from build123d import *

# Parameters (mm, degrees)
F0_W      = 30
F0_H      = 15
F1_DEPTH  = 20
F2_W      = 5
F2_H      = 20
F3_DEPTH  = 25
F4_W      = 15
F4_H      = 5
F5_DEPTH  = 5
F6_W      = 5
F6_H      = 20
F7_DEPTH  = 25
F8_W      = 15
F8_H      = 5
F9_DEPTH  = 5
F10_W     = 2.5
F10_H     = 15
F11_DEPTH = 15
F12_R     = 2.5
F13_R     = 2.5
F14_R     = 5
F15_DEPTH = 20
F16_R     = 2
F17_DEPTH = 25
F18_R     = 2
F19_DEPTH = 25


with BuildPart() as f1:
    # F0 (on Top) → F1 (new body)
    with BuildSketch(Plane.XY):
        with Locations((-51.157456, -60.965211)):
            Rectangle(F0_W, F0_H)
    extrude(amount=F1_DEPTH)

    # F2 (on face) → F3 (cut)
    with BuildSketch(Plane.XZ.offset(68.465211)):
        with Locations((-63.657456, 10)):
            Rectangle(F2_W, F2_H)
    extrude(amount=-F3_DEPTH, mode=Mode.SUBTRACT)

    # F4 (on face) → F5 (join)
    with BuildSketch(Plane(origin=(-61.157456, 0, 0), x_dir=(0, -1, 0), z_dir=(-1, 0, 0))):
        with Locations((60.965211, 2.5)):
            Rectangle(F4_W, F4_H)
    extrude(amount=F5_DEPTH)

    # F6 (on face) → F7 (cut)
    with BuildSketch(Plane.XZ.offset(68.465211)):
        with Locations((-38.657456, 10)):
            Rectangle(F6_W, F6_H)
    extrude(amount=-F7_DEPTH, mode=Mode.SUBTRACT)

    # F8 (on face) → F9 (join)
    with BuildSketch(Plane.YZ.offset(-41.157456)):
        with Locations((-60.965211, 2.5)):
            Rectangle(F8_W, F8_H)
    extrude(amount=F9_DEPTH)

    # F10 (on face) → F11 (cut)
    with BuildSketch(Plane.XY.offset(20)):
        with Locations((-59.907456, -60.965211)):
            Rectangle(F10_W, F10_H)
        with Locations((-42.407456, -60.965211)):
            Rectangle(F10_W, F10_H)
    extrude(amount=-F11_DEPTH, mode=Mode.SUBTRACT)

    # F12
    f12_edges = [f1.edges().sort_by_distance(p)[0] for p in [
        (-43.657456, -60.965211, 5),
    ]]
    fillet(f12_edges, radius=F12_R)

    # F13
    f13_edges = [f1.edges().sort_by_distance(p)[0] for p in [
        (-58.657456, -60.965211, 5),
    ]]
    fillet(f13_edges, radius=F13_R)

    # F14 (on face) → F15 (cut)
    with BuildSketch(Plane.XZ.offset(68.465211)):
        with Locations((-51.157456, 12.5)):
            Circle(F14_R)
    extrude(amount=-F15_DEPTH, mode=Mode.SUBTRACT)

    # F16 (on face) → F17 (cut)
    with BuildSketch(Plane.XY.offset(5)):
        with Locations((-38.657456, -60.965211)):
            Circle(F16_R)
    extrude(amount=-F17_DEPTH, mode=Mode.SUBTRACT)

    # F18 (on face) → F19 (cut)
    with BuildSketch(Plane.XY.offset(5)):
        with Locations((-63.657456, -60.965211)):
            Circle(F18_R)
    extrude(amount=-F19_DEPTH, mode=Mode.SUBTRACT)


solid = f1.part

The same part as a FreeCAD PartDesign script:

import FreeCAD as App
import Part
import Sketcher
Q = App.Units.Quantity


def edges_at(feature, points):
    """Names of the edges that pass closest to the given points."""
    edges = feature.Shape.Edges
    near = lambda p: min(range(len(edges)), key=lambda i: edges[i].distToShape(Part.Vertex(*p))[0])
    return sorted({f"Edge{near(p) + 1}" for p in points})


def add_polygon(sketch, points):
    """Adds a closed chain of lines whose ends are joined by coincident constraints."""
    first, n = sketch.GeometryCount, len(points)
    for a, b in zip(points, points[1:] + points[:1]):
        sketch.addGeometry(Part.LineSegment(App.Vector(*a, 0), App.Vector(*b, 0)), False)
    for i in range(n):
        sketch.addConstraint(Sketcher.Constraint("Coincident", first + i, 2, first + (i + 1) % n, 1))

doc = App.newDocument("Part")
body = doc.addObject("PartDesign::Body", "Body")

# Sketch on XY plane
sketch1 = body.newObject("Sketcher::SketchObject", "Sketch")
sketch1.AttachmentSupport = (doc.getObject("XY_Plane"), [""])
sketch1.MapMode = "FlatFace"
add_polygon(sketch1, [(-66, -53), (-66, -68), (-36, -68), (-36, -53)])  # lines 0-3
sketch1.addConstraint([
    Sketcher.Constraint("Vertical", 0),
    Sketcher.Constraint("Horizontal", 1),
    Sketcher.Constraint("Vertical", 2),
    Sketcher.Constraint("Horizontal", 3),
    Sketcher.Constraint("DistanceX", 1, 1, 1, 2, Q("30 mm")),
    Sketcher.Constraint("DistanceY", 0, 2, 0, 1, Q("15 mm")),
    Sketcher.Constraint("DistanceY", 0, 2, -1, 1, Q("68.465211 mm")),
    Sketcher.Constraint("DistanceX", 0, 2, -1, 1, Q("66.157456 mm")),
])
pad1 = body.newObject("PartDesign::Pad", "Pad")
pad1.Profile = sketch1
pad1.Length = 20

# Sketch on XZ plane
sketch2 = body.newObject("Sketcher::SketchObject", "Sketch001")
sketch2.AttachmentSupport = (doc.getObject("XZ_Plane"), [""])
sketch2.MapMode = "FlatFace"
sketch2.AttachmentOffset = App.Placement(App.Vector(0, 0, 68.465211), App.Rotation())
add_polygon(sketch2, [(-66.2, 20), (-66.2, 0), (-61.2, 0), (-61.2, 20)])  # lines 0-3
sketch2.addConstraint([
    Sketcher.Constraint("Vertical", 0),
    Sketcher.Constraint("Horizontal", 1),
    Sketcher.Constraint("Vertical", 2),
    Sketcher.Constraint("Horizontal", 3),
    Sketcher.Constraint("PointOnObject", 0, 2, -1),
    Sketcher.Constraint("DistanceX", 1, 1, 1, 2, Q("5 mm")),
    Sketcher.Constraint("DistanceY", 0, 2, 0, 1, Q("20 mm")),
    Sketcher.Constraint("DistanceX", 0, 2, -1, 1, Q("66.157456 mm")),
])
pocket1 = body.newObject("PartDesign::Pocket", "Pocket")
pocket1.Profile = sketch2
pocket1.Length = 25

# Sketch on YZ plane
sketch3 = body.newObject("Sketcher::SketchObject", "Sketch002")
sketch3.AttachmentSupport = (doc.getObject("YZ_Plane"), [""])
sketch3.MapMode = "FlatFace"
sketch3.AttachmentOffset = App.Placement(App.Vector(0, 0, -61.157456), App.Rotation())
add_polygon(sketch3, [(-53, 5), (-53, 0), (-68, 0), (-68, 5)])  # lines 0-3
sketch3.addConstraint([
    Sketcher.Constraint("Vertical", 0),
    Sketcher.Constraint("Horizontal", 1),
    Sketcher.Constraint("Vertical", 2),
    Sketcher.Constraint("Horizontal", 3),
    Sketcher.Constraint("PointOnObject", 0, 2, -1),
    Sketcher.Constraint("DistanceX", 1, 2, 1, 1, Q("15 mm")),
    Sketcher.Constraint("DistanceY", 0, 2, 0, 1, Q("5 mm")),
    Sketcher.Constraint("DistanceX", 0, 2, -1, 1, Q("53.465211 mm")),
])
pad2 = body.newObject("PartDesign::Pad", "Pad001")
pad2.Profile = sketch3
pad2.Length = 5
pad2.Reversed = True

# Sketch on XZ plane
sketch4 = body.newObject("Sketcher::SketchObject", "Sketch003")
sketch4.AttachmentSupport = (doc.getObject("XZ_Plane"), [""])
sketch4.MapMode = "FlatFace"
sketch4.AttachmentOffset = App.Placement(App.Vector(0, 0, 68.465211), App.Rotation())
add_polygon(sketch4, [(-41, 20), (-41, 0), (-36, 0), (-36, 20)])  # lines 0-3
sketch4.addConstraint([
    Sketcher.Constraint("Vertical", 0),
    Sketcher.Constraint("Horizontal", 1),
    Sketcher.Constraint("Vertical", 2),
    Sketcher.Constraint("Horizontal", 3),
    Sketcher.Constraint("PointOnObject", 0, 2, -1),
    Sketcher.Constraint("DistanceX", 1, 1, 1, 2, Q("5 mm")),
    Sketcher.Constraint("DistanceY", 0, 2, 0, 1, Q("20 mm")),
    Sketcher.Constraint("DistanceX", 0, 2, -1, 1, Q("41.157456 mm")),
])
pocket2 = body.newObject("PartDesign::Pocket", "Pocket001")
pocket2.Profile = sketch4
pocket2.Length = 25

# Sketch on YZ plane
sketch5 = body.newObject("Sketcher::SketchObject", "Sketch004")
sketch5.AttachmentSupport = (doc.getObject("YZ_Plane"), [""])
sketch5.MapMode = "FlatFace"
sketch5.AttachmentOffset = App.Placement(App.Vector(0, 0, -41.157456), App.Rotation())
add_polygon(sketch5, [(-68, 5), (-68, 0), (-53, 0), (-53, 5)])  # lines 0-3
sketch5.addConstraint([
    Sketcher.Constraint("Vertical", 0),
    Sketcher.Constraint("Horizontal", 1),
    Sketcher.Constraint("Vertical", 2),
    Sketcher.Constraint("Horizontal", 3),
    Sketcher.Constraint("PointOnObject", 0, 2, -1),
    Sketcher.Constraint("DistanceX", 1, 1, 1, 2, Q("15 mm")),
    Sketcher.Constraint("DistanceY", 0, 2, 0, 1, Q("5 mm")),
    Sketcher.Constraint("DistanceX", 0, 2, -1, 1, Q("68.465211 mm")),
])
pad3 = body.newObject("PartDesign::Pad", "Pad002")
pad3.Profile = sketch5
pad3.Length = 5

# Sketch on XY plane
sketch6 = body.newObject("Sketcher::SketchObject", "Sketch005")
sketch6.AttachmentSupport = (doc.getObject("XY_Plane"), [""])
sketch6.MapMode = "FlatFace"
sketch6.AttachmentOffset = App.Placement(App.Vector(0, 0, 20), App.Rotation())
add_polygon(sketch6, [(-61.2, -53.5), (-61.2, -68.5), (-58.7, -68.5), (-58.7, -53.5)])  # lines 0-3
add_polygon(sketch6, [(-43.7, -53.5), (-43.7, -68.5), (-41.2, -68.5), (-41.2, -53.5)])  # lines 4-7
sketch6.addConstraint([
    Sketcher.Constraint("Vertical", 0),
    Sketcher.Constraint("Horizontal", 1),
    Sketcher.Constraint("Vertical", 2),
    Sketcher.Constraint("Horizontal", 3),
    Sketcher.Constraint("Vertical", 4),
    Sketcher.Constraint("Horizontal", 5),
    Sketcher.Constraint("Vertical", 6),
    Sketcher.Constraint("Horizontal", 7),
    Sketcher.Constraint("Horizontal", 1, 2, 4, 2),
    Sketcher.Constraint("Horizontal", 3, 2, 6, 2),
    Sketcher.Constraint("Equal", 3, 5),
    Sketcher.Constraint("DistanceY", 0, 2, 0, 1, Q("15 mm")),
    Sketcher.Constraint("DistanceX", 1, 1, 1, 2, Q("2.5 mm")),
    Sketcher.Constraint("DistanceX", 1, 2, 4, 2, Q("15 mm")),
    Sketcher.Constraint("DistanceY", 0, 2, -1, 1, Q("68.465211 mm")),
    Sketcher.Constraint("DistanceX", 0, 2, -1, 1, Q("61.157456 mm")),
])
pocket3 = body.newObject("PartDesign::Pocket", "Pocket002")
pocket3.Profile = sketch6
pocket3.Length = 15
doc.recompute()

fillet = body.newObject("PartDesign::Fillet", "Fillet")
fillet.Base = (pocket3, edges_at(pocket3, [(-43.657, -60.965, 5)]))
fillet.Radius = 2.5
doc.recompute()

fillet2 = body.newObject("PartDesign::Fillet", "Fillet001")
fillet2.Base = (fillet, edges_at(fillet, [(-58.657, -60.965, 5)]))
fillet2.Radius = 2.5

# Sketch on XZ plane
sketch7 = body.newObject("Sketcher::SketchObject", "Sketch006")
sketch7.AttachmentSupport = (doc.getObject("XZ_Plane"), [""])
sketch7.MapMode = "FlatFace"
sketch7.AttachmentOffset = App.Placement(App.Vector(0, 0, 68.465211), App.Rotation())
sketch7.addGeometry(Part.Circle(App.Vector(-51, 12, 0), App.Vector(0, 0, 1), 5), False)
sketch7.addConstraint([
    Sketcher.Constraint("Diameter", 0, Q("10 mm")),
    Sketcher.Constraint("DistanceY", -1, 1, 0, 3, Q("12.5 mm")),
    Sketcher.Constraint("DistanceX", 0, 3, -1, 1, Q("51.157456 mm")),
])
pocket4 = body.newObject("PartDesign::Pocket", "Pocket003")
pocket4.Profile = sketch7
pocket4.Length = 20

# Sketch on XY plane
sketch8 = body.newObject("Sketcher::SketchObject", "Sketch007")
sketch8.AttachmentSupport = (doc.getObject("XY_Plane"), [""])
sketch8.MapMode = "FlatFace"
sketch8.AttachmentOffset = App.Placement(App.Vector(0, 0, 5), App.Rotation())
sketch8.addGeometry(Part.Circle(App.Vector(-38.7, -61, 0), App.Vector(0, 0, 1), 2), False)
sketch8.addConstraint([
    Sketcher.Constraint("Diameter", 0, Q("4 mm")),
    Sketcher.Constraint("DistanceY", 0, 3, -1, 1, Q("60.965211 mm")),
    Sketcher.Constraint("DistanceX", 0, 3, -1, 1, Q("38.657456 mm")),
])
pocket5 = body.newObject("PartDesign::Pocket", "Pocket004")
pocket5.Profile = sketch8
pocket5.Length = 25

# Sketch on XY plane
sketch9 = body.newObject("Sketcher::SketchObject", "Sketch008")
sketch9.AttachmentSupport = (doc.getObject("XY_Plane"), [""])
sketch9.MapMode = "FlatFace"
sketch9.AttachmentOffset = App.Placement(App.Vector(0, 0, 5), App.Rotation())
sketch9.addGeometry(Part.Circle(App.Vector(-63.7, -61, 0), App.Vector(0, 0, 1), 2), False)
sketch9.addConstraint([
    Sketcher.Constraint("Diameter", 0, Q("4 mm")),
    Sketcher.Constraint("DistanceY", 0, 3, -1, 1, Q("60.965211 mm")),
    Sketcher.Constraint("DistanceX", 0, 3, -1, 1, Q("63.657456 mm")),
])
pocket6 = body.newObject("PartDesign::Pocket", "Pocket005")
pocket6.Profile = sketch9
pocket6.Length = 25

doc.recompute()
